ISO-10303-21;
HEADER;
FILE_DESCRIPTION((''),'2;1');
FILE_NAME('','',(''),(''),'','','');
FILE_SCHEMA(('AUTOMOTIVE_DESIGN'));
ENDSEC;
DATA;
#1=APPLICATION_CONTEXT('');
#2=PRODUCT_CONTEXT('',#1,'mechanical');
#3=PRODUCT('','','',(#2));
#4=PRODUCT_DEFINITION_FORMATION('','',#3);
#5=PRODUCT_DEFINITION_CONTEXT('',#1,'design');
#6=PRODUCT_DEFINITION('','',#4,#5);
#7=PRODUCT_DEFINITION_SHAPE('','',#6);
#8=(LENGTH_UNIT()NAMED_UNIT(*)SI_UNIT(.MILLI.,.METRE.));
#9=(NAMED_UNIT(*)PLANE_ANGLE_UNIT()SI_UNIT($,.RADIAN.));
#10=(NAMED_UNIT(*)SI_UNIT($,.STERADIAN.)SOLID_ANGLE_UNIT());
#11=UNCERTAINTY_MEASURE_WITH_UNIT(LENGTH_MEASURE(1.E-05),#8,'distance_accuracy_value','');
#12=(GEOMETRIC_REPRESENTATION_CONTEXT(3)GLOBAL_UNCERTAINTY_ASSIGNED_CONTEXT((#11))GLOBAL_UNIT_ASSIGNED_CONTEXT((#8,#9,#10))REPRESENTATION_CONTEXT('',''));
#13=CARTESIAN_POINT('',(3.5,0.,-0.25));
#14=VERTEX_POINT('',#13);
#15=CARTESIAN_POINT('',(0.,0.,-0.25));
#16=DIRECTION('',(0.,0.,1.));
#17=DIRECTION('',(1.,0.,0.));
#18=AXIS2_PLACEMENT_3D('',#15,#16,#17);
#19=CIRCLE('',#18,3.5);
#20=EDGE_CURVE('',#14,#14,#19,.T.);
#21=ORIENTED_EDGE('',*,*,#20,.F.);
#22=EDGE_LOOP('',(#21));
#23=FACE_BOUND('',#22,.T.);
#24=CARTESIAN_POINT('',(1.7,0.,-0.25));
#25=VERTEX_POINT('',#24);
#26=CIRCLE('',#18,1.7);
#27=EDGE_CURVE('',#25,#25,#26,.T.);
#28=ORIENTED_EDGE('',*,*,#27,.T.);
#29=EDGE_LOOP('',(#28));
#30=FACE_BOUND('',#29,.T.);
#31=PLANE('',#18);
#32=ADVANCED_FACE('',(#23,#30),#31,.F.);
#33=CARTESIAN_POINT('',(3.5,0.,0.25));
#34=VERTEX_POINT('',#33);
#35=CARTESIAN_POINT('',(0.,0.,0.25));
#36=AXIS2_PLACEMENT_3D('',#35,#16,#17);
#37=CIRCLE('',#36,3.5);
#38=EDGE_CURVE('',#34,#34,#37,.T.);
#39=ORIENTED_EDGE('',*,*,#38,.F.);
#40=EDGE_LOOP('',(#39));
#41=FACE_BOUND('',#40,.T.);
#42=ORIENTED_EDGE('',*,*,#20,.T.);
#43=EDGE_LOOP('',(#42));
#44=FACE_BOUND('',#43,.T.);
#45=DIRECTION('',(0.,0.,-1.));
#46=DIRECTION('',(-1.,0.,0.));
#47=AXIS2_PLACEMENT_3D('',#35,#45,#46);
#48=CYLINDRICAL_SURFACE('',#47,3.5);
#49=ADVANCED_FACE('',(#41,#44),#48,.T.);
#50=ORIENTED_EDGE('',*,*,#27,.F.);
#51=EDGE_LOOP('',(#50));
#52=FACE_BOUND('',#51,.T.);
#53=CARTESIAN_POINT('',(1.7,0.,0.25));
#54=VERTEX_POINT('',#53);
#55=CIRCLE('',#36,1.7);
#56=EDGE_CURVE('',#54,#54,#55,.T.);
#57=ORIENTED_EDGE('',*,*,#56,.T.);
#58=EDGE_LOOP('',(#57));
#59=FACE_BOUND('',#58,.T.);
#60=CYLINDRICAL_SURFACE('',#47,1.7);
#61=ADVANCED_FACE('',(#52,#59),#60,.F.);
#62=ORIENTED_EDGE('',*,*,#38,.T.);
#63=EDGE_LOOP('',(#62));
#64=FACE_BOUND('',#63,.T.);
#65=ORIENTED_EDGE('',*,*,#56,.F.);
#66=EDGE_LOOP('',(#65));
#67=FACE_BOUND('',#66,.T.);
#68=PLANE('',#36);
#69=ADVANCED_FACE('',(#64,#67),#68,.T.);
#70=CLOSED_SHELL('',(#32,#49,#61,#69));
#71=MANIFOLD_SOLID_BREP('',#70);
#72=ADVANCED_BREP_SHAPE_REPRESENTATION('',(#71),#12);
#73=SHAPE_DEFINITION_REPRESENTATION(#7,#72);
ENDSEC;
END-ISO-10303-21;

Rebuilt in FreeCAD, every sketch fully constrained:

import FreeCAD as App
import Part
import Sketcher
from FreeCAD import Vector

doc = App.newDocument("Part")
body = doc.addObject("PartDesign::Body", "Body")

sketch1 = body.newObject("Sketcher::SketchObject", "Sketch")
sketch1.AttachmentSupport = (doc.getObject("XY_Plane"), [""])
sketch1.MapMode = "FlatFace"
sketch1.addGeometry(Part.Circle(Vector(0, 0, 0), Vector(0, 0, 1), 3.5), False)
sketch1.addGeometry(Part.Circle(Vector(0, 0, 0), Vector(0, 0, 1), 1.7), False)
sketch1.addConstraint(Sketcher.Constraint("Coincident", 0, 3, -1, 1))
sketch1.addConstraint(Sketcher.Constraint("Coincident", 1, 3, -1, 1))
sketch1.addConstraint(Sketcher.Constraint("Diameter", 0, 7.0))
sketch1.addConstraint(Sketcher.Constraint("Diameter", 1, 3.4))
pad1 = body.newObject("PartDesign::Pad", "Pad")
pad1.Profile = sketch1
pad1.Length = 0.5
pad1.Midplane = True

doc.recompute()
